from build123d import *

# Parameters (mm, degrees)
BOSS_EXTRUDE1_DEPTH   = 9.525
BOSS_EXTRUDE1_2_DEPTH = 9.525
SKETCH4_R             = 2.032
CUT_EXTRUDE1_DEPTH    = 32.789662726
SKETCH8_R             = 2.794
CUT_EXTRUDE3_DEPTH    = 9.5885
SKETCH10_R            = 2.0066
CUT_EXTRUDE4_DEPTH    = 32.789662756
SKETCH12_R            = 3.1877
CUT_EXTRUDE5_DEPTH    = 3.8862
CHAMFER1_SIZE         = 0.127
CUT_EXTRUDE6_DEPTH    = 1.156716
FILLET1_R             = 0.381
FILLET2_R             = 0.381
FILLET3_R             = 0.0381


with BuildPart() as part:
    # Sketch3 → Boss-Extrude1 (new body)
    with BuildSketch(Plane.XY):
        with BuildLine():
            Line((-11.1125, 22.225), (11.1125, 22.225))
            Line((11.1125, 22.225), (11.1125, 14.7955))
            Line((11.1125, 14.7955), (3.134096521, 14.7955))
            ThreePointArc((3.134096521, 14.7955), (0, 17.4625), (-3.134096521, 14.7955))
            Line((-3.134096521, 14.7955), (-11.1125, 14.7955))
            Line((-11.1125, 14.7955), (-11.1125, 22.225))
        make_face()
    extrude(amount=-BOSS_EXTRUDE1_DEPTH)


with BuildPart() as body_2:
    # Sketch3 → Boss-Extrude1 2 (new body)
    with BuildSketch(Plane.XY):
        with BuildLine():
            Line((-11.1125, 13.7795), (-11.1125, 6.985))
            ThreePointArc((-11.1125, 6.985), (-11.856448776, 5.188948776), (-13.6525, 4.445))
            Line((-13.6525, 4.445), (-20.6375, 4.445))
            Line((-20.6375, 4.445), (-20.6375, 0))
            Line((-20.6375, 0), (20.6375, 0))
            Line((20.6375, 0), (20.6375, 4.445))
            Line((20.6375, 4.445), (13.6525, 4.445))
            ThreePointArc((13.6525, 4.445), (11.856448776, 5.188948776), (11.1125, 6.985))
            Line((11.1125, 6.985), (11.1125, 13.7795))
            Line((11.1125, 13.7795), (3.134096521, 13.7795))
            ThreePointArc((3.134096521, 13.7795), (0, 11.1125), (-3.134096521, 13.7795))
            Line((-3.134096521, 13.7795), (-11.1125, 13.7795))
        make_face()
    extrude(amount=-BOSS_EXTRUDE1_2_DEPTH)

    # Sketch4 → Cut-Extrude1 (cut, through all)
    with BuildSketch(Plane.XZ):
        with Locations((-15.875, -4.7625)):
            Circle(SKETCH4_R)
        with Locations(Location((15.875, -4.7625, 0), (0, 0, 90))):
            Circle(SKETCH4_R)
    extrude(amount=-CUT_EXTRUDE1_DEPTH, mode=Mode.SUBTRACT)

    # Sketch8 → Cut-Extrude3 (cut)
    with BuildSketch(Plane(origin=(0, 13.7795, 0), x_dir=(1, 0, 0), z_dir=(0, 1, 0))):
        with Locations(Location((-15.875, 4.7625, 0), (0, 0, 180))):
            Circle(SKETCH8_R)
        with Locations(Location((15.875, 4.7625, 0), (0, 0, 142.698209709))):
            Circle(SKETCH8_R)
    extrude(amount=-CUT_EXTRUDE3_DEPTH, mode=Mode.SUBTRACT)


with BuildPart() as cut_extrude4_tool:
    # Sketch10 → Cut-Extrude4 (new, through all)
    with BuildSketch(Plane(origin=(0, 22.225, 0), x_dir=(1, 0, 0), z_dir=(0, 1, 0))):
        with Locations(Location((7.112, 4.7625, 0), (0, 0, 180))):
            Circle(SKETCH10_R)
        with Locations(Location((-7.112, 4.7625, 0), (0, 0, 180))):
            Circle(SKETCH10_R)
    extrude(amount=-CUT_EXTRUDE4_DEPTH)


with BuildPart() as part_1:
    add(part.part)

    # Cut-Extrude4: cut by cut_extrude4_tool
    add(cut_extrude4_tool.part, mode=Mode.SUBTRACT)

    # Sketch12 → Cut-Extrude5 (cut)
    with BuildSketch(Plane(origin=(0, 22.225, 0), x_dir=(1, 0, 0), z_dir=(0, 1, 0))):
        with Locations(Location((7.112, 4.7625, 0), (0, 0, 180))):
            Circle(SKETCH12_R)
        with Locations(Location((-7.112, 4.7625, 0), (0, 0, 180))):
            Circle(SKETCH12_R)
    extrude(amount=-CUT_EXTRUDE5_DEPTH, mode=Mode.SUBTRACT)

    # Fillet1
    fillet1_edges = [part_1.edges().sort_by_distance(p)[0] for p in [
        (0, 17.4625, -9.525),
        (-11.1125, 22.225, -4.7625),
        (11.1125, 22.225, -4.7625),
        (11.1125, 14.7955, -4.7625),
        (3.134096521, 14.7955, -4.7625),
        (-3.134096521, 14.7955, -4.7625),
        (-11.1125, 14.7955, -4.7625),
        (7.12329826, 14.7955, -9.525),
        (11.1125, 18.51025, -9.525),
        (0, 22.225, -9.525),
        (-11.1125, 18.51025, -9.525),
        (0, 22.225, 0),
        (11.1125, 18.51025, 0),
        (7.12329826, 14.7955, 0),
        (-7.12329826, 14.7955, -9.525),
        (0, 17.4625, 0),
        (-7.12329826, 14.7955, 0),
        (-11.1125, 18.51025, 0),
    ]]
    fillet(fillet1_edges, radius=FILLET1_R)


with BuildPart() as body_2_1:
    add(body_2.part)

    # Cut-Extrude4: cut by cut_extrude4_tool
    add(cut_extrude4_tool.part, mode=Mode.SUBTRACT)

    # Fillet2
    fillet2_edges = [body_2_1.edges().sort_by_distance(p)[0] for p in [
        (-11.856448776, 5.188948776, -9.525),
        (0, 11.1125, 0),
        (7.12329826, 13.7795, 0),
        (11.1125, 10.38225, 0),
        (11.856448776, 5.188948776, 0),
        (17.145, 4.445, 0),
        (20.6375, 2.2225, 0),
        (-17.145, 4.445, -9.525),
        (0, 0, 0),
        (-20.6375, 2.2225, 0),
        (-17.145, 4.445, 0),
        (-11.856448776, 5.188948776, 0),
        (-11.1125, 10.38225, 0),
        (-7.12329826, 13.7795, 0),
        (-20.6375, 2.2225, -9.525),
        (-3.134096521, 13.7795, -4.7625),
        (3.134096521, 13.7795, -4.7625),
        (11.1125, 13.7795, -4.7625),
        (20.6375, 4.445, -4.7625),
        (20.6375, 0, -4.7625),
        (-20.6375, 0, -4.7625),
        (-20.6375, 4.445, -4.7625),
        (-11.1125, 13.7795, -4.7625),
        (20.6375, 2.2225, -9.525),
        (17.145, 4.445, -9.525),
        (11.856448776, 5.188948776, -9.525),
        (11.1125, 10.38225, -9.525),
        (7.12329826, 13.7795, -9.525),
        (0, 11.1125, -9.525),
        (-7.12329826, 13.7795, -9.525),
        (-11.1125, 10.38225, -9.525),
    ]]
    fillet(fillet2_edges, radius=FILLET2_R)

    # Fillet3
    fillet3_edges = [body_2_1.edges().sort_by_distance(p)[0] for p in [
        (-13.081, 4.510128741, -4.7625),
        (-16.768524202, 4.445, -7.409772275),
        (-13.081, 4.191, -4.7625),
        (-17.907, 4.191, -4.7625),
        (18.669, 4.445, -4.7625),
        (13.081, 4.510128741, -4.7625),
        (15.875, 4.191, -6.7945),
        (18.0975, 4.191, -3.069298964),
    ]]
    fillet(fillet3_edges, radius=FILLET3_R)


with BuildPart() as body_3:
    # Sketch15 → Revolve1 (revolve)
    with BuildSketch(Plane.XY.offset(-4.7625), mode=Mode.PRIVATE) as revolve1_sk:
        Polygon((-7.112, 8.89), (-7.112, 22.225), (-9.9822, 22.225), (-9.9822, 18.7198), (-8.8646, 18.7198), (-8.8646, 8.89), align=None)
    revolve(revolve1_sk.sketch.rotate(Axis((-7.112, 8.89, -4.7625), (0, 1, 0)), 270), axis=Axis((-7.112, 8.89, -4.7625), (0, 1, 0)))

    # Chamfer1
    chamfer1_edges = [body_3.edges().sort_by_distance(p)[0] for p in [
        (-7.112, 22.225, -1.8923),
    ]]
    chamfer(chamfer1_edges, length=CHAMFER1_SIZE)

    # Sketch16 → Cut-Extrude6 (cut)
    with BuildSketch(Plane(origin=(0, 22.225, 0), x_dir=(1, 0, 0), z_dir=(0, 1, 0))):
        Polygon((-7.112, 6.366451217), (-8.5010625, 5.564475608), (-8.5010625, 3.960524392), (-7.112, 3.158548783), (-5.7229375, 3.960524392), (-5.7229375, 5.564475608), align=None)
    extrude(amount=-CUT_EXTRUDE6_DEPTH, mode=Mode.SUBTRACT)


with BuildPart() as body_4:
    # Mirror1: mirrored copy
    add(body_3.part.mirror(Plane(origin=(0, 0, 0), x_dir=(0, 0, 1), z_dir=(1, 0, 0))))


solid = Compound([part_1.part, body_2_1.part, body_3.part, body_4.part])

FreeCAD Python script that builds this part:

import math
import FreeCAD as App
import Part
import Sketcher

V = App.Vector
Q = App.Units.Quantity


def edges_at(feature, points):
    """Names of the edges that pass closest to the given points."""
    edges = feature.Shape.Edges
    near = lambda p: min(range(len(edges)), key=lambda i: edges[i].distToShape(Part.Vertex(*p))[0])
    return sorted({f"Edge{near(p) + 1}" for p in points})

doc = App.newDocument("Part")
body = doc.addObject("PartDesign::Body", "Body")

# Sketch on XY plane
sketch1 = body.newObject("Sketcher::SketchObject", "Sketch")
sketch1.AttachmentSupport = (doc.getObject("XY_Plane"), [""])
sketch1.MapMode = "FlatFace"
sketch1.addGeometry(Part.LineSegment(V(11.1, 22.2, 0), V(-11.1, 22.2, 0)), False)
sketch1.addGeometry(Part.LineSegment(V(-11.1, 22.2, 0), V(-11.1, 14.8, 0)), False)
sketch1.addGeometry(Part.LineSegment(V(-11.1, 14.8, 0), V(-3.1, 14.8, 0)), False)
sketch1.addGeometry(Part.ArcOfCircle(Part.Circle(V(0, 14.3, 0), V(0, 0, 1), 3.2), math.radians(9), math.radians(171)), False)
sketch1.addGeometry(Part.LineSegment(V(3.1, 14.8, 0), V(11.1, 14.8, 0)), False)
sketch1.addGeometry(Part.LineSegment(V(11.1, 14.8, 0), V(11.1, 22.2, 0)), False)
sketch1.addConstraint(Sketcher.Constraint("Coincident", 0, 2, 1, 1))
sketch1.addConstraint(Sketcher.Constraint("Coincident", 1, 2, 2, 1))
sketch1.addConstraint(Sketcher.Constraint("Coincident", 2, 2, 3, 2))
sketch1.addConstraint(Sketcher.Constraint("Coincident", 3, 1, 4, 1))
sketch1.addConstraint(Sketcher.Constraint("Coincident", 4, 2, 5, 1))
sketch1.addConstraint(Sketcher.Constraint("Coincident", 5, 2, 0, 1))
sketch1.addConstraint(Sketcher.Constraint("Horizontal", 0))
sketch1.addConstraint(Sketcher.Constraint("Vertical", 1))
sketch1.addConstraint(Sketcher.Constraint("Horizontal", 2))
sketch1.addConstraint(Sketcher.Constraint("Horizontal", 4))
sketch1.addConstraint(Sketcher.Constraint("Vertical", 5))
sketch1.addConstraint(Sketcher.Constraint("Symmetric", 2, 2, 3, 1, -2))
sketch1.addConstraint(Sketcher.Constraint("Equal", 2, 4))
sketch1.addConstraint(Sketcher.Constraint("Radius", 3, Q("0.125 in")))
sketch1.addConstraint(Sketcher.Constraint("DistanceX", 0, 2, 0, 1, Q("0.875 in")))
sketch1.addConstraint(Sketcher.Constraint("DistanceY", 3, 3, 1, 2, Q("0.02 in")))
sketch1.addConstraint(Sketcher.Constraint("DistanceY", 1, 2, 1, 1, Q("0.2925 in")))
sketch1.addConstraint(Sketcher.Constraint("DistanceY", -1, 1, 3, 3, Q("0.5625 in")))
pad1 = body.newObject("PartDesign::Pad", "Pad")
pad1.Profile = sketch1
pad1.Length = Q("0.375 in")
pad1.Reversed = True
body2 = doc.addObject("PartDesign::Body", "Body001")

# Sketch on XY plane
sketch2 = body2.newObject("Sketcher::SketchObject", "Sketch001")
sketch2.AttachmentSupport = (doc.getObject("XY_Plane001"), [""])
sketch2.MapMode = "FlatFace"
sketch2.addGeometry(Part.LineSegment(V(-11.1, 13.8, 0), V(-11.1, 7, 0)), False)
sketch2.addGeometry(Part.ArcOfCircle(Part.Circle(V(-13.7, 7, 0), V(0, 0, 1), 2.5), math.radians(-90), math.radians(0)), False)
sketch2.addGeometry(Part.LineSegment(V(-13.7, 4.4, 0), V(-20.6, 4.4, 0)), False)
sketch2.addGeometry(Part.LineSegment(V(-20.6, 4.4, 0), V(-20.6, 0, 0)), False)
sketch2.addGeometry(Part.LineSegment(V(-20.6, 0, 0), V(20.6, 0, 0)), False)
sketch2.addGeometry(Part.LineSegment(V(20.6, 0, 0), V(20.6, 4.4, 0)), False)
sketch2.addGeometry(Part.LineSegment(V(20.6, 4.4, 0), V(13.7, 4.4, 0)), False)
sketch2.addGeometry(Part.ArcOfCircle(Part.Circle(V(13.7, 7, 0), V(0, 0, 1), 2.5), math.radians(-180), math.radians(-90)), False)
sketch2.addGeometry(Part.LineSegment(V(11.1, 7, 0), V(11.1, 13.8, 0)), False)
sketch2.addGeometry(Part.LineSegment(V(11.1, 13.8, 0), V(3.1, 13.8, 0)), False)
sketch2.addGeometry(Part.ArcOfCircle(Part.Circle(V(0, 14.3, 0), V(0, 0, 1), 3.2), math.radians(-171), math.radians(-9)), False)
sketch2.addGeometry(Part.LineSegment(V(-3.1, 13.8, 0), V(-11.1, 13.8, 0)), False)
sketch2.addConstraint(Sketcher.Constraint("Tangent", 0, 2, 1, 2))
sketch2.addConstraint(Sketcher.Constraint("Tangent", 1, 1, 2, 1))
sketch2.addConstraint(Sketcher.Constraint("Coincident", 2, 2, 3, 1))
sketch2.addConstraint(Sketcher.Constraint("Coincident", 3, 2, 4, 1))
sketch2.addConstraint(Sketcher.Constraint("Coincident", 4, 2, 5, 1))
sketch2.addConstraint(Sketcher.Constraint("Coincident", 5, 2, 6, 1))
sketch2.addConstraint(Sketcher.Constraint("Tangent", 6, 2, 7, 2))
sketch2.addConstraint(Sketcher.Constraint("Tangent", 7, 1, 8, 1))
sketch2.addConstraint(Sketcher.Constraint("Coincident", 8, 2, 9, 1))
sketch2.addConstraint(Sketcher.Constraint("Coincident", 9, 2, 10, 2))
sketch2.addConstraint(Sketcher.Constraint("Coincident", 10, 1, 11, 1))
sketch2.addConstraint(Sketcher.Constraint("Coincident", 11, 2, 0, 1))
sketch2.addConstraint(Sketcher.Constraint("Vertical", 0))
sketch2.addConstraint(Sketcher.Constraint("Horizontal", 2))
sketch2.addConstraint(Sketcher.Constraint("Vertical", 3))
sketch2.addConstraint(Sketcher.Constraint("Horizontal", 4))
sketch2.addConstraint(Sketcher.Constraint("Vertical", 5))
sketch2.addConstraint(Sketcher.Constraint("Horizontal", 6))
sketch2.addConstraint(Sketcher.Constraint("Vertical", 8))
sketch2.addConstraint(Sketcher.Constraint("Horizontal", 9))
sketch2.addConstraint(Sketcher.Constraint("Horizontal", 11))
sketch2.addConstraint(Sketcher.Constraint("Equal", 1, 7))
sketch2.addConstraint(Sketcher.Constraint("Symmetric", 3, 2, 4, 2, -1, 1))
sketch2.addConstraint(Sketcher.Constraint("Symmetric", 1, 3, 7, 3, -2))
sketch2.addConstraint(Sketcher.Constraint("Symmetric", 9, 2, 10, 1, -2))
sketch2.addConstraint(Sketcher.Constraint("Radius", 1, Q("0.1 in")))
sketch2.addConstraint(Sketcher.Constraint("Radius", 10, Q("0.125 in")))
sketch2.addConstraint(Sketcher.Constraint("DistanceX", 2, 2, 2, 1, Q("0.275 in")))
sketch2.addConstraint(Sketcher.Constraint("DistanceX", 4, 1, 4, 2, Q("1.625 in")))
sketch2.addConstraint(Sketcher.Constraint("DistanceY", 3, 2, 3, 1, Q("0.175 in")))
sketch2.addConstraint(Sketcher.Constraint("DistanceY", 8, 2, 10, 3, Q("0.02 in")))
sketch2.addConstraint(Sketcher.Constraint("DistanceY", 0, 2, 0, 1, Q("0.2675 in")))
pad2 = body2.newObject("PartDesign::Pad", "Pad001")
pad2.Profile = sketch2
pad2.Length = Q("0.375 in")
pad2.Reversed = True

# Sketch on XZ plane
sketch3 = body2.newObject("Sketcher::SketchObject", "Sketch002")
sketch3.AttachmentSupport = (doc.getObject("XZ_Plane001"), [""])
sketch3.MapMode = "FlatFace"
sketch3.addGeometry(Part.Circle(V(-15.9, -4.8, 0), V(0, 0, 1), 2), False)
sketch3.addGeometry(Part.Circle(V(15.9, -4.8, 0), V(0, 0, 1), 2), False)
sketch3.addConstraint(Sketcher.Constraint("Equal", 0, 1))
sketch3.addConstraint(Sketcher.Constraint("Symmetric", 0, 3, 1, 3, -2))
sketch3.addConstraint(Sketcher.Constraint("Diameter", 0, Q("0.16 in")))
sketch3.addConstraint(Sketcher.Constraint("DistanceX", 0, 3, 1, 3, Q("1.25 in")))
sketch3.addConstraint(Sketcher.Constraint("DistanceY", 0, 3, -1, 1, Q("0.1875 in")))
pocket1 = body2.newObject("PartDesign::Pocket", "Pocket")
pocket1.Profile = sketch3
pocket1.Type = "ThroughAll"

# Sketch on XZ plane
sketch4 = body2.newObject("Sketcher::SketchObject", "Sketch003")
sketch4.AttachmentSupport = (doc.getObject("XZ_Plane001"), [""])
sketch4.MapMode = "FlatFace"
sketch4.AttachmentOffset = App.Placement(V(0, 0, -0.5425 * 25.4), App.Rotation())
sketch4.addGeometry(Part.Circle(V(-15.9, -4.8, 0), V(0, 0, 1), 2.8), False)
sketch4.addGeometry(Part.Circle(V(15.9, -4.8, 0), V(0, 0, 1), 2.8), False)
sketch4.addConstraint(Sketcher.Constraint("Equal", 0, 1))
sketch4.addConstraint(Sketcher.Constraint("Symmetric", 0, 3, 1, 3, -2))
sketch4.addConstraint(Sketcher.Constraint("Diameter", 0, Q("0.22 in")))
sketch4.addConstraint(Sketcher.Constraint("DistanceX", 0, 3, 1, 3, Q("1.25 in")))
sketch4.addConstraint(Sketcher.Constraint("DistanceY", 0, 3, -1, 1, Q("0.1875 in")))
pocket2 = body2.newObject("PartDesign::Pocket", "Pocket001")
pocket2.Profile = sketch4
pocket2.Length = Q("0.3775 in")
pocket2.Reversed = True
body3 = doc.addObject("PartDesign::Body", "Body002")
body3.AllowCompound = True

# Sketch on XZ plane
sketch5 = body3.newObject("Sketcher::SketchObject", "Sketch004")
sketch5.AttachmentSupport = (doc.getObject("XZ_Plane002"), [""])
sketch5.MapMode = "FlatFace"
sketch5.AttachmentOffset = App.Placement(V(0, 0, -0.875 * 25.4), App.Rotation())
sketch5.addGeometry(Part.Circle(V(7.1, -4.8, 0), V(0, 0, 1), 2), False)
sketch5.addGeometry(Part.Circle(V(-7.1, -4.8, 0), V(0, 0, 1), 2), False)
sketch5.addConstraint(Sketcher.Constraint("Equal", 0, 1))
sketch5.addConstraint(Sketcher.Constraint("Symmetric", 0, 3, 1, 3, -2))
sketch5.addConstraint(Sketcher.Constraint("Diameter", 0, Q("0.158 in")))
sketch5.addConstraint(Sketcher.Constraint("DistanceX", -1, 1, 0, 3, Q("0.28 in")))
sketch5.addConstraint(Sketcher.Constraint("DistanceY", 0, 3, -1, 1, Q("0.1875 in")))
pad3 = body3.newObject("PartDesign::Pad", "Pad002")
pad3.Profile = sketch5
pad3.Length = 32.789663
doc.recompute()

body4 = doc.addObject("PartDesign::Body", "Body003")
body4.BaseFeature = body3
boolean = body.newObject("PartDesign::Boolean", "Boolean")
boolean.Type = "Cut"
boolean.addObjects([body4])
doc.recompute()

# Sketch on XZ plane
sketch6 = body.newObject("Sketcher::SketchObject", "Sketch005")
sketch6.AttachmentSupport = (doc.getObject("XZ_Plane"), [""])
sketch6.MapMode = "FlatFace"
sketch6.AttachmentOffset = App.Placement(V(0, 0, -0.875 * 25.4), App.Rotation())
sketch6.addGeometry(Part.Circle(V(7.1, -4.8, 0), V(0, 0, 1), 3.2), False)
sketch6.addGeometry(Part.Circle(V(-7.1, -4.8, 0), V(0, 0, 1), 3.2), False)
sketch6.addConstraint(Sketcher.Constraint("Equal", 0, 1))
sketch6.addConstraint(Sketcher.Constraint("Symmetric", 0, 3, 1, 3, -2))
sketch6.addConstraint(Sketcher.Constraint("Diameter", 0, Q("0.251 in")))
sketch6.addConstraint(Sketcher.Constraint("DistanceX", -1, 1, 0, 3, Q("0.28 in")))
sketch6.addConstraint(Sketcher.Constraint("DistanceY", 0, 3, -1, 1, Q("0.1875 in")))
pocket3 = body.newObject("PartDesign::Pocket", "Pocket002")
pocket3.Profile = sketch6
pocket3.Length = Q("0.153 in")
pocket3.Reversed = True
doc.recompute()

fillet = body.newObject("PartDesign::Fillet", "Fillet")
fillet.Base = (pocket3, edges_at(pocket3, [
    (0, 17.462, -9.525),
    (-11.113, 22.225, -4.763),
    (11.113, 22.225, -4.763),
    (11.113, 14.796, -4.763),
    (3.134, 14.796, -4.763),
    (-3.134, 14.796, -4.763),
    (-11.113, 14.796, -4.763),
    (7.123, 14.796, -9.525),
    (11.113, 18.51, -9.525),
    (0, 22.225, -9.525),
    (-11.113, 18.51, -9.525),
    (0, 22.225, 0),
    (11.113, 18.51, 0),
    (7.123, 14.796, 0),
    (-7.123, 14.796, -9.525),
    (0, 17.462, 0),
    (-7.123, 14.796, 0),
    (-11.113, 18.51, 0),
]))
fillet.Radius = Q("0.015 in")
doc.recompute()

boolean2 = body2.newObject("PartDesign::Boolean", "Boolean001")
boolean2.Type = "Cut"
boolean2.addObjects([body3])
doc.recompute()

fillet2 = body2.newObject("PartDesign::Fillet", "Fillet001")
fillet2.Base = (boolean2, edges_at(boolean2, [
    (-11.856, 5.189, -9.525),
    (0, 11.113, 0),
    (7.123, 13.78, 0),
    (11.113, 10.382, 0),
    (11.856, 5.189, 0),
    (17.145, 4.445, 0),
    (20.637, 2.223, 0),
    (-17.145, 4.445, -9.525),
    (0, 0, 0),
    (-20.637, 2.223, 0),
    (-17.145, 4.445, 0),
    (-11.856, 5.189, 0),
    (-11.113, 10.382, 0),
    (-7.123, 13.78, 0),
    (-20.637, 2.223, -9.525),
    (-3.134, 13.78, -4.763),
    (3.134, 13.78, -4.763),
    (11.113, 13.78, -4.763),
    (20.637, 4.445, -4.763),
    (20.637, 0, -4.763),
    (-20.637, 0, -4.763),
    (-20.637, 4.445, -4.763),
    (-11.113, 13.78, -4.763),
    (20.637, 2.223, -9.525),
    (17.145, 4.445, -9.525),
    (11.856, 5.189, -9.525),
    (11.113, 10.382, -9.525),
    (7.123, 13.78, -9.525),
    (0, 11.113, -9.525),
    (-7.123, 13.78, -9.525),
    (-11.113, 10.382, -9.525),
]))
fillet2.Radius = Q("0.015 in")
doc.recompute()

fillet3 = body2.newObject("PartDesign::Fillet", "Fillet002")
fillet3.Base = (fillet2, edges_at(fillet2, [
    (-13.081, 4.51, -4.763),
    (-16.769, 4.445, -7.41),
    (-13.081, 4.191, -4.763),
    (-17.907, 4.191, -4.763),
    (18.669, 4.445, -4.763),
    (13.081, 4.51, -4.763),
    (15.875, 4.191, -6.795),
    (18.098, 4.191, -3.069),
]))
fillet3.Radius = Q("0.0015 in")
body5 = doc.addObject("PartDesign::Body", "Body004")

# Sketch on XY plane
sketch7 = body5.newObject("Sketcher::SketchObject", "Sketch006")
sketch7.AttachmentSupport = (doc.getObject("XY_Plane004"), [""])
sketch7.MapMode = "FlatFace"
sketch7.AttachmentOffset = App.Placement(V(0, 0, -0.1875 * 25.4), App.Rotation())
sketch7.addGeometry(Part.LineSegment(V(-7.1, 8.9, 0), V(-7.1, 22.2, 0)), False)
sketch7.addGeometry(Part.LineSegment(V(-7.1, 22.2, 0), V(-10, 22.2, 0)), False)
sketch7.addGeometry(Part.LineSegment(V(-10, 22.2, 0), V(-10, 18.7, 0)), False)
sketch7.addGeometry(Part.LineSegment(V(-10, 18.7, 0), V(-8.9, 18.7, 0)), False)
sketch7.addGeometry(Part.LineSegment(V(-8.9, 18.7, 0), V(-8.9, 8.9, 0)), False)
sketch7.addGeometry(Part.LineSegment(V(-8.9, 8.9, 0), V(-7.1, 8.9, 0)), False)
sketch7.addGeometry(Part.LineSegment(V(-7.1, 8.9, 0), V(-7.1, 22.2, 0)), True)  # axis
sketch7.addConstraint(Sketcher.Constraint("Coincident", 0, 2, 1, 1))
sketch7.addConstraint(Sketcher.Constraint("Coincident", 1, 2, 2, 1))
sketch7.addConstraint(Sketcher.Constraint("Coincident", 2, 2, 3, 1))
sketch7.addConstraint(Sketcher.Constraint("Coincident", 3, 2, 4, 1))
sketch7.addConstraint(Sketcher.Constraint("Coincident", 4, 2, 5, 1))
sketch7.addConstraint(Sketcher.Constraint("Coincident", 5, 2, 0, 1))
sketch7.addConstraint(Sketcher.Constraint("Vertical", 0))
sketch7.addConstraint(Sketcher.Constraint("Horizontal", 1))
sketch7.addConstraint(Sketcher.Constraint("Vertical", 2))
sketch7.addConstraint(Sketcher.Constraint("Horizontal", 3))
sketch7.addConstraint(Sketcher.Constraint("Vertical", 4))
sketch7.addConstraint(Sketcher.Constraint("Horizontal", 5))
sketch7.addConstraint(Sketcher.Constraint("Vertical", 6))
sketch7.addConstraint(Sketcher.Constraint("Coincident", 6, 1, 5, 2))
sketch7.addConstraint(Sketcher.Constraint("Horizontal", 1, 2, 6, 2))
sketch7.addConstraint(Sketcher.Constraint("DistanceX", 1, 2, 1, 1, Q("0.113 in")))
sketch7.addConstraint(Sketcher.Constraint("DistanceX", 3, 1, 3, 2, Q("0.044 in")))
sketch7.addConstraint(Sketcher.Constraint("DistanceY", 0, 1, 0, 2, Q("0.525 in")))
sketch7.addConstraint(Sketcher.Constraint("DistanceY", 2, 2, 2, 1, Q("0.138 in")))
sketch7.addConstraint(Sketcher.Constraint("DistanceX", 0, 2, -1, 1, Q("0.28 in")))
sketch7.addConstraint(Sketcher.Constraint("DistanceY", -1, 1, 4, 2, Q("0.35 in")))
revolution = body5.newObject("PartDesign::Revolution", "Revolution")
revolution.Profile = sketch7
revolution.ReferenceAxis = (sketch7, ["Axis0"])
revolution.Angle = 360
doc.recompute()

chamfer = body5.newObject("PartDesign::Chamfer", "Chamfer")
chamfer.Base = (revolution, edges_at(revolution, [(-7.112, 22.225, -1.892)]))
chamfer.Size = Q("0.005 in")

# Sketch on XZ plane
sketch8 = body5.newObject("Sketcher::SketchObject", "Sketch007")
sketch8.AttachmentSupport = (doc.getObject("XZ_Plane004"), [""])
sketch8.MapMode = "FlatFace"
sketch8.AttachmentOffset = App.Placement(V(0, 0, -0.875 * 25.4), App.Rotation())
sketch8.addGeometry(Part.LineSegment(V(-7.1, -6.4, 0), V(-8.5, -5.6, 0)), False)
sketch8.addGeometry(Part.LineSegment(V(-8.5, -5.6, 0), V(-8.5, -4, 0)), False)
sketch8.addGeometry(Part.LineSegment(V(-8.5, -4, 0), V(-7.1, -3.2, 0)), False)
sketch8.addGeometry(Part.LineSegment(V(-7.1, -3.2, 0), V(-5.7, -4, 0)), False)
sketch8.addGeometry(Part.LineSegment(V(-5.7, -4, 0), V(-5.7, -5.6, 0)), False)
sketch8.addGeometry(Part.LineSegment(V(-5.7, -5.6, 0), V(-7.1, -6.4, 0)), False)
sketch8.addConstraint(Sketcher.Constraint("Coincident", 0, 2, 1, 1))
sketch8.addConstraint(Sketcher.Constraint("Coincident", 1, 2, 2, 1))
sketch8.addConstraint(Sketcher.Constraint("Coincident", 2, 2, 3, 1))
sketch8.addConstraint(Sketcher.Constraint("Coincident", 3, 2, 4, 1))
sketch8.addConstraint(Sketcher.Constraint("Coincident", 4, 2, 5, 1))
sketch8.addConstraint(Sketcher.Constraint("Coincident", 5, 2, 0, 1))
sketch8.addConstraint(Sketcher.Constraint("Vertical", 1))
sketch8.addConstraint(Sketcher.Constraint("Vertical", 4))
sketch8.addConstraint(Sketcher.Constraint("Parallel", 0, 3))
sketch8.addConstraint(Sketcher.Constraint("Parallel", 2, 5))
sketch8.addConstraint(Sketcher.Constraint("Horizontal", 1, 2, 3, 2))
sketch8.addConstraint(Sketcher.Constraint("Horizontal", 0, 2, 4, 2))
sketch8.addConstraint(Sketcher.Constraint("Vertical", 2, 2, 5, 2))
sketch8.addConstraint(Sketcher.Constraint("Angle", 0, Q("150 deg")))
sketch8.addConstraint(Sketcher.Constraint("DistanceX", 2, 2, -1, 1, Q("0.28 in")))
sketch8.addConstraint(Sketcher.Constraint("DistanceX", 1, 2, 3, 2, Q("0.109375 in")))
sketch8.addConstraint(Sketcher.Constraint("DistanceY", 1, 1, 1, 2, 1.603951))
sketch8.addConstraint(Sketcher.Constraint("DistanceY", 2, 2, -1, 1, 3.158549))
pocket4 = body5.newObject("PartDesign::Pocket", "Pocket003")
pocket4.Profile = sketch8
pocket4.Length = 1.156716
pocket4.Reversed = True
body6 = doc.addObject("PartDesign::Body", "Body005")
doc.recompute()

mirroring = doc.addObject("Part::Mirroring", "Mirroring")
mirroring.Source = body5
mirroring.Base = V(0, 0, 0)
mirroring.Normal = V(1, 0, 0)
body6.BaseFeature = mirroring
doc.recompute()
mirroring.Visibility = False

doc.recompute()
